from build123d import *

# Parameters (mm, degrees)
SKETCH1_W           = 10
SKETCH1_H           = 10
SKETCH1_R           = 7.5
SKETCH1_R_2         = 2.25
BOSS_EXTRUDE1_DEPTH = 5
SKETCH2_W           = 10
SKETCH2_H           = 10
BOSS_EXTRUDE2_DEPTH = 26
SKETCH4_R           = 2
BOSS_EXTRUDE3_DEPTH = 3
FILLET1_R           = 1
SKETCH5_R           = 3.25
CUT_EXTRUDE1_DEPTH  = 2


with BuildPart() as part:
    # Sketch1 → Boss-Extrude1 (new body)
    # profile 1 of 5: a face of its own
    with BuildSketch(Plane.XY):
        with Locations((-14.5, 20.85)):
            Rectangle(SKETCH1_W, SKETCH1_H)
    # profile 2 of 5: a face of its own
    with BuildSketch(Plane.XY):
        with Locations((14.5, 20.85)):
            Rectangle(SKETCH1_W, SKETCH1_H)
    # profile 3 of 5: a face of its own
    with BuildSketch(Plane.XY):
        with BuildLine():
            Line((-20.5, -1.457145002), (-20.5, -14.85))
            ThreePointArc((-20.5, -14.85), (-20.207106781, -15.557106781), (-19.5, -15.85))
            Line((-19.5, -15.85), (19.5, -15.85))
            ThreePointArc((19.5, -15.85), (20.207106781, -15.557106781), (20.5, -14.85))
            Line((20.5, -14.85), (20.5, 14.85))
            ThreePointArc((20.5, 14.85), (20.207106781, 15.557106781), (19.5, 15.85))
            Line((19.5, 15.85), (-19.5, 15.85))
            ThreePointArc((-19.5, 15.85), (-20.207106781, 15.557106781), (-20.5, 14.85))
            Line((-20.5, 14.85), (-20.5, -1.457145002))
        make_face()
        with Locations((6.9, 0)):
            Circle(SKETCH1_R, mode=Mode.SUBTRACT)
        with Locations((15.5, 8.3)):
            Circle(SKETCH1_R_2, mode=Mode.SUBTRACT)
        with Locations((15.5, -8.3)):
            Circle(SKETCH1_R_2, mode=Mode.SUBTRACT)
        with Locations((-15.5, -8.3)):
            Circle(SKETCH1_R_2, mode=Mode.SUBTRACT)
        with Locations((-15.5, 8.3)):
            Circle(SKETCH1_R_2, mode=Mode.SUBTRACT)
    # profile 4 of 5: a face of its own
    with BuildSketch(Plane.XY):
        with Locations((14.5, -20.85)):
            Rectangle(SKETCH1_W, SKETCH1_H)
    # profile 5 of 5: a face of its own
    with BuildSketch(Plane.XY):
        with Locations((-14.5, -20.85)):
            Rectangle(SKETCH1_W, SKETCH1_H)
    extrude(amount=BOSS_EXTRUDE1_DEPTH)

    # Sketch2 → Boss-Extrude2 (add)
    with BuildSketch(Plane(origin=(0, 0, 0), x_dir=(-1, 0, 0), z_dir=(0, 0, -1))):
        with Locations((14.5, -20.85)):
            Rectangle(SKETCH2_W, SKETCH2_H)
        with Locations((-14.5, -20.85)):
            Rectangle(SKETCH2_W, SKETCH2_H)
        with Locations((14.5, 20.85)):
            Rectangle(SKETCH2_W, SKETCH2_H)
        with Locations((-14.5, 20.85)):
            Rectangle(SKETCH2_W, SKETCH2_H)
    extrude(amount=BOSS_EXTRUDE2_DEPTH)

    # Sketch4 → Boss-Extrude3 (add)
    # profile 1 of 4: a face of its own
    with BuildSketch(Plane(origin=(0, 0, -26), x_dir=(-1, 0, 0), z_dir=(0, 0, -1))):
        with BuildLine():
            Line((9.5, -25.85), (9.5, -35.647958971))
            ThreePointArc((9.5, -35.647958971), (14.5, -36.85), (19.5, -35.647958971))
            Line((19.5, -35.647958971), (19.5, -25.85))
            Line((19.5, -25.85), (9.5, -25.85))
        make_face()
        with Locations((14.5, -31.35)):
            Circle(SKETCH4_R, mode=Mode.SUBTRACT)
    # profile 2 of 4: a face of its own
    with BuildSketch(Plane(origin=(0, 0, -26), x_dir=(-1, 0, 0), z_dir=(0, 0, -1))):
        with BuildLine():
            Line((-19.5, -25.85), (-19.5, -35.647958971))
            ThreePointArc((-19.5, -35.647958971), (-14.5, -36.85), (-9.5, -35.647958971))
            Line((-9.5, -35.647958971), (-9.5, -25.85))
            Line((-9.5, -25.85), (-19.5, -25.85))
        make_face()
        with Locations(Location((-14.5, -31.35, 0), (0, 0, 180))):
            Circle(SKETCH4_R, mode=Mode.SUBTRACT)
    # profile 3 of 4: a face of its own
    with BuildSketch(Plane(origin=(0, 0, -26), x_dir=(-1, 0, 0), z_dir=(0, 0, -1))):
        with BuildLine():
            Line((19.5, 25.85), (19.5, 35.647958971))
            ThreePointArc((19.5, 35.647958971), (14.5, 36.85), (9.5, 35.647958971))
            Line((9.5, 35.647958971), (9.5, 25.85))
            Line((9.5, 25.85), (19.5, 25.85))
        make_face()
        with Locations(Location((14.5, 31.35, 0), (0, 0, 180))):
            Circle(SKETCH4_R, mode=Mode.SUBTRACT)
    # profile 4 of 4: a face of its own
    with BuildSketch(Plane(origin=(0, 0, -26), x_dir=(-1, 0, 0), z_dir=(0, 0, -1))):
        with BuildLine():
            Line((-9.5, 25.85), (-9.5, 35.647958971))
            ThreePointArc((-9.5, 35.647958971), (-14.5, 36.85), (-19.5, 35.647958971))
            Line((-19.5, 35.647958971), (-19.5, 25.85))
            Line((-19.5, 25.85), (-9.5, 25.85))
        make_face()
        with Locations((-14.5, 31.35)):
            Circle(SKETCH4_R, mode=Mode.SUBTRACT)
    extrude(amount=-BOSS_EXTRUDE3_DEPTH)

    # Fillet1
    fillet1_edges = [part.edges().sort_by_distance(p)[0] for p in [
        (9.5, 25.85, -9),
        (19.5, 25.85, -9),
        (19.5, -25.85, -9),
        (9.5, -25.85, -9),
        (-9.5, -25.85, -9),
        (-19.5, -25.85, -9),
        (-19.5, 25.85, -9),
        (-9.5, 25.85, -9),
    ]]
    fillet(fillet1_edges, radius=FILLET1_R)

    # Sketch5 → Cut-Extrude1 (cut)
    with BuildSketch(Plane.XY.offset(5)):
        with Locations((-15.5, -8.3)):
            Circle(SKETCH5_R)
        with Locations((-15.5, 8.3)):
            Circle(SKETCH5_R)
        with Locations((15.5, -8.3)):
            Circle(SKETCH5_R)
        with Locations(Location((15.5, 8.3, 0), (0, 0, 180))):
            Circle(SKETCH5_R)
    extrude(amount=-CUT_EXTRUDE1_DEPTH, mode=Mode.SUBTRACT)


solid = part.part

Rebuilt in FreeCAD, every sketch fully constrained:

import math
import FreeCAD as App
import Part
import Sketcher
from FreeCAD import Vector
Q = App.Units.Quantity


def edges_at(feature, points):
    """Names of the edges that pass closest to the given points."""
    edges = feature.Shape.Edges
    near = lambda p: min(range(len(edges)), key=lambda i: edges[i].distToShape(Part.Vertex(*p))[0])
    return sorted({f"Edge{near(p) + 1}" for p in points})

doc = App.newDocument("Part")
body = doc.addObject("PartDesign::Body", "Body")

# Sketch on XY plane
sketch1 = doc.addObject("Sketcher::SketchObject", "Sketch")
body.addObject(sketch1)
sketch1.AttachmentSupport = (doc.XY_Plane, [""])
sketch1.MapMode = "FlatFace"
sketch1.addGeometry([
    Part.LineSegment(Vector(-19.5, 25.9, 0), Vector(-19.5, 15.8, 0)),  # 0
    Part.ArcOfCircle(Part.Circle(Vector(-19.5, 14.8, 0), Vector(0, 0, 1), 1), math.radians(90), math.radians(180)),  # 1
    Part.LineSegment(Vector(-20.5, 14.8, 0), Vector(-20.5, -14.8, 0)),  # 2
    Part.ArcOfCircle(Part.Circle(Vector(-19.5, -14.8, 0), Vector(0, 0, 1), 1), math.radians(-180), math.radians(-90)),  # 3
    Part.LineSegment(Vector(-19.5, -15.8, 0), Vector(-19.5, -25.9, 0)),  # 4
    Part.LineSegment(Vector(-19.5, -25.9, 0), Vector(-9.5, -25.9, 0)),  # 5
    Part.LineSegment(Vector(-9.5, -25.9, 0), Vector(-9.5, -15.8, 0)),  # 6
    Part.LineSegment(Vector(-9.5, -15.8, 0), Vector(9.5, -15.8, 0)),  # 7
    Part.LineSegment(Vector(9.5, -15.8, 0), Vector(9.5, -25.9, 0)),  # 8
    Part.LineSegment(Vector(9.5, -25.9, 0), Vector(19.5, -25.9, 0)),  # 9
    Part.LineSegment(Vector(19.5, -25.9, 0), Vector(19.5, -15.8, 0)),  # 10
    Part.ArcOfCircle(Part.Circle(Vector(19.5, -14.8, 0), Vector(0, 0, 1), 1), math.radians(-90), math.radians(0)),  # 11
    Part.LineSegment(Vector(20.5, -14.8, 0), Vector(20.5, 14.8, 0)),  # 12
    Part.ArcOfCircle(Part.Circle(Vector(19.5, 14.8, 0), Vector(0, 0, 1), 1), math.radians(0), math.radians(90)),  # 13
    Part.LineSegment(Vector(19.5, 15.8, 0), Vector(19.5, 25.9, 0)),  # 14
    Part.LineSegment(Vector(19.5, 25.9, 0), Vector(9.5, 25.9, 0)),  # 15
    Part.LineSegment(Vector(9.5, 25.9, 0), Vector(9.5, 15.8, 0)),  # 16
    Part.LineSegment(Vector(9.5, 15.8, 0), Vector(-9.5, 15.8, 0)),  # 17
    Part.LineSegment(Vector(-9.5, 15.8, 0), Vector(-9.5, 25.9, 0)),  # 18
    Part.LineSegment(Vector(-9.5, 25.9, 0), Vector(-19.5, 25.9, 0)),  # 19
    Part.Circle(Vector(15.5, 8.3, 0), Vector(0, 0, 1), 2.2),  # 20
    Part.Circle(Vector(-15.5, -8.3, 0), Vector(0, 0, 1), 2.2),  # 21
    Part.Circle(Vector(15.5, -8.3, 0), Vector(0, 0, 1), 2.2),  # 22
    Part.Circle(Vector(-15.5, 8.3, 0), Vector(0, 0, 1), 2.2),  # 23
    Part.Circle(Vector(6.9, 0, 0), Vector(0, 0, 1), 7.5),  # 24
], False)
sketch1.addConstraint([
    Sketcher.Constraint("Coincident", 0, 2, 1, 1),
    Sketcher.Constraint("Tangent", 1, 2, 2, 1),
    Sketcher.Constraint("Tangent", 2, 2, 3, 1),
    Sketcher.Constraint("Coincident", 3, 2, 4, 1),
    Sketcher.Constraint("Coincident", 4, 2, 5, 1),
    Sketcher.Constraint("Coincident", 5, 2, 6, 1),
    Sketcher.Constraint("Coincident", 6, 2, 7, 1),
    Sketcher.Constraint("Coincident", 7, 2, 8, 1),
    Sketcher.Constraint("Coincident", 8, 2, 9, 1),
    Sketcher.Constraint("Coincident", 9, 2, 10, 1),
    Sketcher.Constraint("Coincident", 10, 2, 11, 1),
    Sketcher.Constraint("Tangent", 11, 2, 12, 1),
    Sketcher.Constraint("Tangent", 12, 2, 13, 1),
    Sketcher.Constraint("Coincident", 13, 2, 14, 1),
    Sketcher.Constraint("Coincident", 14, 2, 15, 1),
    Sketcher.Constraint("Coincident", 15, 2, 16, 1),
    Sketcher.Constraint("Coincident", 16, 2, 17, 1),
    Sketcher.Constraint("Coincident", 17, 2, 18, 1),
    Sketcher.Constraint("Coincident", 18, 2, 19, 1),
    Sketcher.Constraint("Coincident", 19, 2, 0, 1),
    Sketcher.Constraint("Vertical", 0),
    Sketcher.Constraint("Vertical", 2),
    Sketcher.Constraint("Vertical", 4),
    Sketcher.Constraint("Horizontal", 5),
    Sketcher.Constraint("Vertical", 6),
    Sketcher.Constraint("Horizontal", 7),
    Sketcher.Constraint("Vertical", 8),
    Sketcher.Constraint("Horizontal", 9),
    Sketcher.Constraint("Vertical", 10),
    Sketcher.Constraint("Vertical", 12),
    Sketcher.Constraint("Vertical", 14),
    Sketcher.Constraint("Horizontal", 15),
    Sketcher.Constraint("Vertical", 16),
    Sketcher.Constraint("Horizontal", 17),
    Sketcher.Constraint("Vertical", 18),
    Sketcher.Constraint("Horizontal", 19),
    Sketcher.Constraint("Equal", 1, 3),
    Sketcher.Constraint("Equal", 3, 11),
    Sketcher.Constraint("Equal", 11, 13),
    Sketcher.Constraint("Equal", 20, 21),
    Sketcher.Constraint("Equal", 21, 22),
    Sketcher.Constraint("Equal", 22, 23),
    Sketcher.Constraint("Symmetric", 1, 3, 11, 3, -1, 1),
    Sketcher.Constraint("Symmetric", 20, 3, 21, 3, -1, 1),
    Sketcher.Constraint("Symmetric", 22, 3, 23, 3, -1, 1),
    Sketcher.Constraint("Symmetric", 3, 2, 13, 2, -1, 1),
    Sketcher.Constraint("Symmetric", 5, 2, 15, 2, -1, 1),
    Sketcher.Constraint("Symmetric", 7, 2, 17, 2, -1, 1),
    Sketcher.Constraint("Symmetric", 9, 2, 19, 2, -1, 1),
    Sketcher.Constraint("Symmetric", 21, 3, 22, 3, -2),
    Sketcher.Constraint("Symmetric", 5, 2, 8, 2, -2),
    Sketcher.Constraint("Symmetric", 3, 2, 10, 2, -2),
    Sketcher.Constraint("PointOnObject", 24, 3, -1),
    Sketcher.Constraint("Horizontal", 3, 2, 6, 2),
    Sketcher.Constraint("Vertical", 3, 3, 0, 2),
    Sketcher.Constraint("Equal", 19, 0),
    Sketcher.Constraint("Diameter", 24, Q("15 mm")),
    Sketcher.Constraint("Radius", 1, Q("1 mm")),
    Sketcher.Constraint("Diameter", 20, Q("4.5 mm")),
    Sketcher.Constraint("DistanceX", 5, 1, 5, 2, Q("10 mm")),
    Sketcher.Constraint("DistanceX", 7, 1, 7, 2, Q("19 mm")),
    Sketcher.Constraint("DistanceY", 2, 2, 2, 1, Q("29.7 mm")),
    Sketcher.Constraint("DistanceX", 20, 3, 13, 3, Q("4 mm")),
    Sketcher.Constraint("DistanceY", -1, 1, 20, 3, Q("8.3 mm")),
    Sketcher.Constraint("DistanceX", -1, 1, 24, 3, Q("6.9 mm")),
])
pad1 = doc.addObject("PartDesign::Pad", "Pad")
body.addObject(pad1)
pad1.Profile = sketch1
pad1.Length = 5

# Sketch on XY plane
sketch2 = doc.addObject("Sketcher::SketchObject", "Sketch001")
body.addObject(sketch2)
sketch2.AttachmentSupport = (doc.XY_Plane, [""])
sketch2.MapMode = "FlatFace"
sketch2.addGeometry([
    Part.LineSegment(Vector(-10, -16, 0), Vector(-10, -26, 0)),  # 0
    Part.LineSegment(Vector(-10, -26, 0), Vector(-20, -26, 0)),  # 1
    Part.LineSegment(Vector(-20, -26, 0), Vector(-20, -16, 0)),  # 2
    Part.LineSegment(Vector(-20, -16, 0), Vector(-10, -16, 0)),  # 3
    Part.LineSegment(Vector(20, -16, 0), Vector(20, -26, 0)),  # 4
    Part.LineSegment(Vector(20, -26, 0), Vector(10, -26, 0)),  # 5
    Part.LineSegment(Vector(10, -26, 0), Vector(10, -16, 0)),  # 6
    Part.LineSegment(Vector(10, -16, 0), Vector(20, -16, 0)),  # 7
    Part.LineSegment(Vector(-10, 26, 0), Vector(-10, 16, 0)),  # 8
    Part.LineSegment(Vector(-10, 16, 0), Vector(-20, 16, 0)),  # 9
    Part.LineSegment(Vector(-20, 16, 0), Vector(-20, 26, 0)),  # 10
    Part.LineSegment(Vector(-20, 26, 0), Vector(-10, 26, 0)),  # 11
    Part.LineSegment(Vector(20, 26, 0), Vector(20, 16, 0)),  # 12
    Part.LineSegment(Vector(20, 16, 0), Vector(10, 16, 0)),  # 13
    Part.LineSegment(Vector(10, 16, 0), Vector(10, 26, 0)),  # 14
    Part.LineSegment(Vector(10, 26, 0), Vector(20, 26, 0)),  # 15
], False)
sketch2.addConstraint([
    Sketcher.Constraint("Coincident", 0, 2, 1, 1),
    Sketcher.Constraint("Coincident", 1, 2, 2, 1),
    Sketcher.Constraint("Coincident", 2, 2, 3, 1),
    Sketcher.Constraint("Coincident", 3, 2, 0, 1),
    Sketcher.Constraint("Coincident", 4, 2, 5, 1),
    Sketcher.Constraint("Coincident", 5, 2, 6, 1),
    Sketcher.Constraint("Coincident", 6, 2, 7, 1),
    Sketcher.Constraint("Coincident", 7, 2, 4, 1),
    Sketcher.Constraint("Coincident", 8, 2, 9, 1),
    Sketcher.Constraint("Coincident", 9, 2, 10, 1),
    Sketcher.Constraint("Coincident", 10, 2, 11, 1),
    Sketcher.Constraint("Coincident", 11, 2, 8, 1),
    Sketcher.Constraint("Coincident", 12, 2, 13, 1),
    Sketcher.Constraint("Coincident", 13, 2, 14, 1),
    Sketcher.Constraint("Coincident", 14, 2, 15, 1),
    Sketcher.Constraint("Coincident", 15, 2, 12, 1),
    Sketcher.Constraint("Vertical", 0),
    Sketcher.Constraint("Horizontal", 1),
    Sketcher.Constraint("Vertical", 2),
    Sketcher.Constraint("Horizontal", 3),
    Sketcher.Constraint("Vertical", 4),
    Sketcher.Constraint("Horizontal", 5),
    Sketcher.Constraint("Vertical", 6),
    Sketcher.Constraint("Horizontal", 7),
    Sketcher.Constraint("Vertical", 8),
    Sketcher.Constraint("Horizontal", 9),
    Sketcher.Constraint("Vertical", 10),
    Sketcher.Constraint("Horizontal", 11),
    Sketcher.Constraint("Vertical", 12),
    Sketcher.Constraint("Horizontal", 13),
    Sketcher.Constraint("Vertical", 14),
    Sketcher.Constraint("Horizontal", 15),
    Sketcher.Constraint("Symmetric", 6, 2, 8, 2, -1, 1),
    Sketcher.Constraint("Symmetric", 4, 2, 10, 2, -1, 1),
    Sketcher.Constraint("Symmetric", 2, 2, 12, 2, -1, 1),
    Sketcher.Constraint("Symmetric", 0, 2, 14, 2, -1, 1),
    Sketcher.Constraint("Symmetric", 1, 2, 4, 2, -2),
    Sketcher.Constraint("Symmetric", 3, 2, 6, 2, -2),
    Sketcher.Constraint("Equal", 15, 0),
    Sketcher.Constraint("DistanceX", 1, 2, 1, 1, Q("10 mm")),
    Sketcher.Constraint("DistanceX", 0, 2, 4, 2, Q("29 mm")),
    Sketcher.Constraint("DistanceY", 3, 2, 8, 2, Q("31.7 mm")),
])
pad2 = doc.addObject("PartDesign::Pad", "Pad001")
body.addObject(pad2)
pad2.Profile = sketch2
pad2.Length = 26
pad2.Reversed = True

# Sketch on XY plane
sketch3 = doc.addObject("Sketcher::SketchObject", "Sketch002")
body.addObject(sketch3)
sketch3.AttachmentSupport = (doc.XY_Plane, [""])
sketch3.MapMode = "FlatFace"
sketch3.AttachmentOffset = App.Placement(Vector(0, 0, -26), App.Rotation())
sketch3.addGeometry([
    Part.LineSegment(Vector(-9.5, -25.9, 0), Vector(-9.5, -35.6, 0)),  # 0
    Part.ArcOfCircle(Part.Circle(Vector(-14.5, -25.9, 0), Vector(0, 0, 1), 11), math.radians(-117), math.radians(-63)),  # 1
    Part.LineSegment(Vector(-19.5, -35.6, 0), Vector(-19.5, -25.9, 0)),  # 2
    Part.LineSegment(Vector(-19.5, -25.9, 0), Vector(-9.5, -25.9, 0)),  # 3
    Part.Circle(Vector(-14.5, -31.4, 0), Vector(0, 0, 1), 2),  # 4
    Part.LineSegment(Vector(19.5, -25.9, 0), Vector(19.5, -35.6, 0)),  # 5
    Part.ArcOfCircle(Part.Circle(Vector(14.5, -25.9, 0), Vector(0, 0, 1), 11), math.radians(-117), math.radians(-63)),  # 6
    Part.LineSegment(Vector(9.5, -35.6, 0), Vector(9.5, -25.9, 0)),  # 7
    Part.LineSegment(Vector(9.5, -25.9, 0), Vector(19.5, -25.9, 0)),  # 8
    Part.Circle(Vector(14.5, -31.4, 0), Vector(0, 0, 1), 2),  # 9
    Part.LineSegment(Vector(-19.5, 25.9, 0), Vector(-19.5, 35.6, 0)),  # 10
    Part.ArcOfCircle(Part.Circle(Vector(-14.5, 25.9, 0), Vector(0, 0, 1), 11), math.radians(63), math.radians(117)),  # 11
    Part.LineSegment(Vector(-9.5, 35.6, 0), Vector(-9.5, 25.9, 0)),  # 12
    Part.LineSegment(Vector(-9.5, 25.9, 0), Vector(-19.5, 25.9, 0)),  # 13
    Part.Circle(Vector(-14.5, 31.4, 0), Vector(0, 0, 1), 2),  # 14
    Part.LineSegment(Vector(9.5, 25.9, 0), Vector(9.5, 35.6, 0)),  # 15
    Part.ArcOfCircle(Part.Circle(Vector(14.5, 25.9, 0), Vector(0, 0, 1), 11), math.radians(63), math.radians(117)),  # 16
    Part.LineSegment(Vector(19.5, 35.6, 0), Vector(19.5, 25.9, 0)),  # 17
    Part.LineSegment(Vector(19.5, 25.9, 0), Vector(9.5, 25.9, 0)),  # 18
    Part.Circle(Vector(14.5, 31.4, 0), Vector(0, 0, 1), 2),  # 19
], False)
sketch3.addConstraint([
    Sketcher.Constraint("Coincident", 0, 2, 1, 2),
    Sketcher.Constraint("Coincident", 1, 1, 2, 1),
    Sketcher.Constraint("Coincident", 2, 2, 3, 1),
    Sketcher.Constraint("Coincident", 3, 2, 0, 1),
    Sketcher.Constraint("Coincident", 5, 2, 6, 2),
    Sketcher.Constraint("Coincident", 6, 1, 7, 1),
    Sketcher.Constraint("Coincident", 7, 2, 8, 1),
    Sketcher.Constraint("Coincident", 8, 2, 5, 1),
    Sketcher.Constraint("Coincident", 10, 2, 11, 2),
    Sketcher.Constraint("Coincident", 11, 1, 12, 1),
    Sketcher.Constraint("Coincident", 12, 2, 13, 1),
    Sketcher.Constraint("Coincident", 13, 2, 10, 1),
    Sketcher.Constraint("Coincident", 15, 2, 16, 2),
    Sketcher.Constraint("Coincident", 16, 1, 17, 1),
    Sketcher.Constraint("Coincident", 17, 2, 18, 1),
    Sketcher.Constraint("Coincident", 18, 2, 15, 1),
    Sketcher.Constraint("Vertical", 0),
    Sketcher.Constraint("Vertical", 2),
    Sketcher.Constraint("Horizontal", 3),
    Sketcher.Constraint("Vertical", 5),
    Sketcher.Constraint("Vertical", 7),
    Sketcher.Constraint("Horizontal", 8),
    Sketcher.Constraint("Vertical", 10),
    Sketcher.Constraint("Vertical", 12),
    Sketcher.Constraint("Horizontal", 13),
    Sketcher.Constraint("Vertical", 15),
    Sketcher.Constraint("Vertical", 17),
    Sketcher.Constraint("Horizontal", 18),
    Sketcher.Constraint("Equal", 1, 6),
    Sketcher.Constraint("Equal", 4, 9),
    Sketcher.Constraint("Equal", 6, 11),
    Sketcher.Constraint("Equal", 9, 14),
    Sketcher.Constraint("Equal", 11, 16),
    Sketcher.Constraint("Equal", 14, 19),
    Sketcher.Constraint("Symmetric", 6, 3, 11, 3, -1, 1),
    Sketcher.Constraint("Symmetric", 9, 3, 14, 3, -1, 1),
    Sketcher.Constraint("Symmetric", 1, 3, 16, 3, -1, 1),
    Sketcher.Constraint("Symmetric", 4, 3, 19, 3, -1, 1),
    Sketcher.Constraint("Symmetric", 7, 2, 12, 2, -1, 1),
    Sketcher.Constraint("Symmetric", 2, 2, 17, 2, -1, 1),
    Sketcher.Constraint("Symmetric", 1, 3, 6, 3, -2),
    Sketcher.Constraint("Symmetric", 4, 3, 9, 3, -2),
    Sketcher.Constraint("Symmetric", 3, 2, 7, 2, -2),
    Sketcher.Constraint("Horizontal", 0, 2, 1, 1),
    Sketcher.Constraint("Horizontal", 6, 3, 2, 2),
    Sketcher.Constraint("Horizontal", 1, 1, 5, 2),
    Sketcher.Constraint("Horizontal", 10, 2, 11, 1),
    Sketcher.Constraint("Horizontal", 11, 1, 15, 2),
    Sketcher.Constraint("Vertical", 1, 3, 4, 3),
    Sketcher.Constraint("Diameter", 4, Q("4 mm")),
    Sketcher.Constraint("Radius", 1, Q("11 mm")),
    Sketcher.Constraint("DistanceX", 3, 1, 3, 2, Q("10 mm")),
    Sketcher.Constraint("DistanceX", 1, 3, 6, 3, Q("29 mm")),
    Sketcher.Constraint("DistanceY", 4, 3, 1, 3, Q("5.5 mm")),
    Sketcher.Constraint("DistanceY", 1, 3, 11, 3, Q("51.7 mm")),
])
pad3 = doc.addObject("PartDesign::Pad", "Pad002")
body.addObject(pad3)
pad3.Profile = sketch3
pad3.Length = 3
doc.recompute()

fillet = doc.addObject("PartDesign::Fillet", "Fillet")
body.addObject(fillet)
fillet.Base = (pad3, edges_at(pad3, [
    (9.5, 25.85, -9),
    (19.5, 25.85, -9),
    (19.5, -25.85, -9),
    (9.5, -25.85, -9),
    (-9.5, -25.85, -9),
    (-19.5, -25.85, -9),
    (-19.5, 25.85, -9),
    (-9.5, 25.85, -9),
]))
fillet.Radius = 1

# Sketch on XY plane
sketch4 = doc.addObject("Sketcher::SketchObject", "Sketch003")
body.addObject(sketch4)
sketch4.AttachmentSupport = (doc.XY_Plane, [""])
sketch4.MapMode = "FlatFace"
sketch4.AttachmentOffset = App.Placement(Vector(0, 0, 5), App.Rotation())
sketch4.addGeometry([
    Part.Circle(Vector(-15.5, -8.3, 0), Vector(0, 0, 1), 3.2),
    Part.Circle(Vector(-15.5, 8.3, 0), Vector(0, 0, 1), 3.2),
    Part.Circle(Vector(15.5, -8.3, 0), Vector(0, 0, 1), 3.2),
    Part.Circle(Vector(15.5, 8.3, 0), Vector(0, 0, 1), 3.2),
], False)
sketch4.addConstraint([
    Sketcher.Constraint("Equal", 0, 1),
    Sketcher.Constraint("Equal", 1, 2),
    Sketcher.Constraint("Equal", 2, 3),
    Sketcher.Constraint("Symmetric", 1, 3, 2, 3, -1, 1),
    Sketcher.Constraint("Symmetric", 0, 3, 3, 3, -1, 1),
    Sketcher.Constraint("Symmetric", 0, 3, 2, 3, -2),
    Sketcher.Constraint("Diameter", 0, Q("6.5 mm")),
    Sketcher.Constraint("DistanceX", 0, 3, 2, 3, Q("31 mm")),
    Sketcher.Constraint("DistanceY", 0, 3, -1, 1, Q("8.3 mm")),
])
pocket1 = doc.addObject("PartDesign::Pocket", "Pocket")
body.addObject(pocket1)
pocket1.Profile = sketch4
pocket1.Length = 2

doc.recompute()
